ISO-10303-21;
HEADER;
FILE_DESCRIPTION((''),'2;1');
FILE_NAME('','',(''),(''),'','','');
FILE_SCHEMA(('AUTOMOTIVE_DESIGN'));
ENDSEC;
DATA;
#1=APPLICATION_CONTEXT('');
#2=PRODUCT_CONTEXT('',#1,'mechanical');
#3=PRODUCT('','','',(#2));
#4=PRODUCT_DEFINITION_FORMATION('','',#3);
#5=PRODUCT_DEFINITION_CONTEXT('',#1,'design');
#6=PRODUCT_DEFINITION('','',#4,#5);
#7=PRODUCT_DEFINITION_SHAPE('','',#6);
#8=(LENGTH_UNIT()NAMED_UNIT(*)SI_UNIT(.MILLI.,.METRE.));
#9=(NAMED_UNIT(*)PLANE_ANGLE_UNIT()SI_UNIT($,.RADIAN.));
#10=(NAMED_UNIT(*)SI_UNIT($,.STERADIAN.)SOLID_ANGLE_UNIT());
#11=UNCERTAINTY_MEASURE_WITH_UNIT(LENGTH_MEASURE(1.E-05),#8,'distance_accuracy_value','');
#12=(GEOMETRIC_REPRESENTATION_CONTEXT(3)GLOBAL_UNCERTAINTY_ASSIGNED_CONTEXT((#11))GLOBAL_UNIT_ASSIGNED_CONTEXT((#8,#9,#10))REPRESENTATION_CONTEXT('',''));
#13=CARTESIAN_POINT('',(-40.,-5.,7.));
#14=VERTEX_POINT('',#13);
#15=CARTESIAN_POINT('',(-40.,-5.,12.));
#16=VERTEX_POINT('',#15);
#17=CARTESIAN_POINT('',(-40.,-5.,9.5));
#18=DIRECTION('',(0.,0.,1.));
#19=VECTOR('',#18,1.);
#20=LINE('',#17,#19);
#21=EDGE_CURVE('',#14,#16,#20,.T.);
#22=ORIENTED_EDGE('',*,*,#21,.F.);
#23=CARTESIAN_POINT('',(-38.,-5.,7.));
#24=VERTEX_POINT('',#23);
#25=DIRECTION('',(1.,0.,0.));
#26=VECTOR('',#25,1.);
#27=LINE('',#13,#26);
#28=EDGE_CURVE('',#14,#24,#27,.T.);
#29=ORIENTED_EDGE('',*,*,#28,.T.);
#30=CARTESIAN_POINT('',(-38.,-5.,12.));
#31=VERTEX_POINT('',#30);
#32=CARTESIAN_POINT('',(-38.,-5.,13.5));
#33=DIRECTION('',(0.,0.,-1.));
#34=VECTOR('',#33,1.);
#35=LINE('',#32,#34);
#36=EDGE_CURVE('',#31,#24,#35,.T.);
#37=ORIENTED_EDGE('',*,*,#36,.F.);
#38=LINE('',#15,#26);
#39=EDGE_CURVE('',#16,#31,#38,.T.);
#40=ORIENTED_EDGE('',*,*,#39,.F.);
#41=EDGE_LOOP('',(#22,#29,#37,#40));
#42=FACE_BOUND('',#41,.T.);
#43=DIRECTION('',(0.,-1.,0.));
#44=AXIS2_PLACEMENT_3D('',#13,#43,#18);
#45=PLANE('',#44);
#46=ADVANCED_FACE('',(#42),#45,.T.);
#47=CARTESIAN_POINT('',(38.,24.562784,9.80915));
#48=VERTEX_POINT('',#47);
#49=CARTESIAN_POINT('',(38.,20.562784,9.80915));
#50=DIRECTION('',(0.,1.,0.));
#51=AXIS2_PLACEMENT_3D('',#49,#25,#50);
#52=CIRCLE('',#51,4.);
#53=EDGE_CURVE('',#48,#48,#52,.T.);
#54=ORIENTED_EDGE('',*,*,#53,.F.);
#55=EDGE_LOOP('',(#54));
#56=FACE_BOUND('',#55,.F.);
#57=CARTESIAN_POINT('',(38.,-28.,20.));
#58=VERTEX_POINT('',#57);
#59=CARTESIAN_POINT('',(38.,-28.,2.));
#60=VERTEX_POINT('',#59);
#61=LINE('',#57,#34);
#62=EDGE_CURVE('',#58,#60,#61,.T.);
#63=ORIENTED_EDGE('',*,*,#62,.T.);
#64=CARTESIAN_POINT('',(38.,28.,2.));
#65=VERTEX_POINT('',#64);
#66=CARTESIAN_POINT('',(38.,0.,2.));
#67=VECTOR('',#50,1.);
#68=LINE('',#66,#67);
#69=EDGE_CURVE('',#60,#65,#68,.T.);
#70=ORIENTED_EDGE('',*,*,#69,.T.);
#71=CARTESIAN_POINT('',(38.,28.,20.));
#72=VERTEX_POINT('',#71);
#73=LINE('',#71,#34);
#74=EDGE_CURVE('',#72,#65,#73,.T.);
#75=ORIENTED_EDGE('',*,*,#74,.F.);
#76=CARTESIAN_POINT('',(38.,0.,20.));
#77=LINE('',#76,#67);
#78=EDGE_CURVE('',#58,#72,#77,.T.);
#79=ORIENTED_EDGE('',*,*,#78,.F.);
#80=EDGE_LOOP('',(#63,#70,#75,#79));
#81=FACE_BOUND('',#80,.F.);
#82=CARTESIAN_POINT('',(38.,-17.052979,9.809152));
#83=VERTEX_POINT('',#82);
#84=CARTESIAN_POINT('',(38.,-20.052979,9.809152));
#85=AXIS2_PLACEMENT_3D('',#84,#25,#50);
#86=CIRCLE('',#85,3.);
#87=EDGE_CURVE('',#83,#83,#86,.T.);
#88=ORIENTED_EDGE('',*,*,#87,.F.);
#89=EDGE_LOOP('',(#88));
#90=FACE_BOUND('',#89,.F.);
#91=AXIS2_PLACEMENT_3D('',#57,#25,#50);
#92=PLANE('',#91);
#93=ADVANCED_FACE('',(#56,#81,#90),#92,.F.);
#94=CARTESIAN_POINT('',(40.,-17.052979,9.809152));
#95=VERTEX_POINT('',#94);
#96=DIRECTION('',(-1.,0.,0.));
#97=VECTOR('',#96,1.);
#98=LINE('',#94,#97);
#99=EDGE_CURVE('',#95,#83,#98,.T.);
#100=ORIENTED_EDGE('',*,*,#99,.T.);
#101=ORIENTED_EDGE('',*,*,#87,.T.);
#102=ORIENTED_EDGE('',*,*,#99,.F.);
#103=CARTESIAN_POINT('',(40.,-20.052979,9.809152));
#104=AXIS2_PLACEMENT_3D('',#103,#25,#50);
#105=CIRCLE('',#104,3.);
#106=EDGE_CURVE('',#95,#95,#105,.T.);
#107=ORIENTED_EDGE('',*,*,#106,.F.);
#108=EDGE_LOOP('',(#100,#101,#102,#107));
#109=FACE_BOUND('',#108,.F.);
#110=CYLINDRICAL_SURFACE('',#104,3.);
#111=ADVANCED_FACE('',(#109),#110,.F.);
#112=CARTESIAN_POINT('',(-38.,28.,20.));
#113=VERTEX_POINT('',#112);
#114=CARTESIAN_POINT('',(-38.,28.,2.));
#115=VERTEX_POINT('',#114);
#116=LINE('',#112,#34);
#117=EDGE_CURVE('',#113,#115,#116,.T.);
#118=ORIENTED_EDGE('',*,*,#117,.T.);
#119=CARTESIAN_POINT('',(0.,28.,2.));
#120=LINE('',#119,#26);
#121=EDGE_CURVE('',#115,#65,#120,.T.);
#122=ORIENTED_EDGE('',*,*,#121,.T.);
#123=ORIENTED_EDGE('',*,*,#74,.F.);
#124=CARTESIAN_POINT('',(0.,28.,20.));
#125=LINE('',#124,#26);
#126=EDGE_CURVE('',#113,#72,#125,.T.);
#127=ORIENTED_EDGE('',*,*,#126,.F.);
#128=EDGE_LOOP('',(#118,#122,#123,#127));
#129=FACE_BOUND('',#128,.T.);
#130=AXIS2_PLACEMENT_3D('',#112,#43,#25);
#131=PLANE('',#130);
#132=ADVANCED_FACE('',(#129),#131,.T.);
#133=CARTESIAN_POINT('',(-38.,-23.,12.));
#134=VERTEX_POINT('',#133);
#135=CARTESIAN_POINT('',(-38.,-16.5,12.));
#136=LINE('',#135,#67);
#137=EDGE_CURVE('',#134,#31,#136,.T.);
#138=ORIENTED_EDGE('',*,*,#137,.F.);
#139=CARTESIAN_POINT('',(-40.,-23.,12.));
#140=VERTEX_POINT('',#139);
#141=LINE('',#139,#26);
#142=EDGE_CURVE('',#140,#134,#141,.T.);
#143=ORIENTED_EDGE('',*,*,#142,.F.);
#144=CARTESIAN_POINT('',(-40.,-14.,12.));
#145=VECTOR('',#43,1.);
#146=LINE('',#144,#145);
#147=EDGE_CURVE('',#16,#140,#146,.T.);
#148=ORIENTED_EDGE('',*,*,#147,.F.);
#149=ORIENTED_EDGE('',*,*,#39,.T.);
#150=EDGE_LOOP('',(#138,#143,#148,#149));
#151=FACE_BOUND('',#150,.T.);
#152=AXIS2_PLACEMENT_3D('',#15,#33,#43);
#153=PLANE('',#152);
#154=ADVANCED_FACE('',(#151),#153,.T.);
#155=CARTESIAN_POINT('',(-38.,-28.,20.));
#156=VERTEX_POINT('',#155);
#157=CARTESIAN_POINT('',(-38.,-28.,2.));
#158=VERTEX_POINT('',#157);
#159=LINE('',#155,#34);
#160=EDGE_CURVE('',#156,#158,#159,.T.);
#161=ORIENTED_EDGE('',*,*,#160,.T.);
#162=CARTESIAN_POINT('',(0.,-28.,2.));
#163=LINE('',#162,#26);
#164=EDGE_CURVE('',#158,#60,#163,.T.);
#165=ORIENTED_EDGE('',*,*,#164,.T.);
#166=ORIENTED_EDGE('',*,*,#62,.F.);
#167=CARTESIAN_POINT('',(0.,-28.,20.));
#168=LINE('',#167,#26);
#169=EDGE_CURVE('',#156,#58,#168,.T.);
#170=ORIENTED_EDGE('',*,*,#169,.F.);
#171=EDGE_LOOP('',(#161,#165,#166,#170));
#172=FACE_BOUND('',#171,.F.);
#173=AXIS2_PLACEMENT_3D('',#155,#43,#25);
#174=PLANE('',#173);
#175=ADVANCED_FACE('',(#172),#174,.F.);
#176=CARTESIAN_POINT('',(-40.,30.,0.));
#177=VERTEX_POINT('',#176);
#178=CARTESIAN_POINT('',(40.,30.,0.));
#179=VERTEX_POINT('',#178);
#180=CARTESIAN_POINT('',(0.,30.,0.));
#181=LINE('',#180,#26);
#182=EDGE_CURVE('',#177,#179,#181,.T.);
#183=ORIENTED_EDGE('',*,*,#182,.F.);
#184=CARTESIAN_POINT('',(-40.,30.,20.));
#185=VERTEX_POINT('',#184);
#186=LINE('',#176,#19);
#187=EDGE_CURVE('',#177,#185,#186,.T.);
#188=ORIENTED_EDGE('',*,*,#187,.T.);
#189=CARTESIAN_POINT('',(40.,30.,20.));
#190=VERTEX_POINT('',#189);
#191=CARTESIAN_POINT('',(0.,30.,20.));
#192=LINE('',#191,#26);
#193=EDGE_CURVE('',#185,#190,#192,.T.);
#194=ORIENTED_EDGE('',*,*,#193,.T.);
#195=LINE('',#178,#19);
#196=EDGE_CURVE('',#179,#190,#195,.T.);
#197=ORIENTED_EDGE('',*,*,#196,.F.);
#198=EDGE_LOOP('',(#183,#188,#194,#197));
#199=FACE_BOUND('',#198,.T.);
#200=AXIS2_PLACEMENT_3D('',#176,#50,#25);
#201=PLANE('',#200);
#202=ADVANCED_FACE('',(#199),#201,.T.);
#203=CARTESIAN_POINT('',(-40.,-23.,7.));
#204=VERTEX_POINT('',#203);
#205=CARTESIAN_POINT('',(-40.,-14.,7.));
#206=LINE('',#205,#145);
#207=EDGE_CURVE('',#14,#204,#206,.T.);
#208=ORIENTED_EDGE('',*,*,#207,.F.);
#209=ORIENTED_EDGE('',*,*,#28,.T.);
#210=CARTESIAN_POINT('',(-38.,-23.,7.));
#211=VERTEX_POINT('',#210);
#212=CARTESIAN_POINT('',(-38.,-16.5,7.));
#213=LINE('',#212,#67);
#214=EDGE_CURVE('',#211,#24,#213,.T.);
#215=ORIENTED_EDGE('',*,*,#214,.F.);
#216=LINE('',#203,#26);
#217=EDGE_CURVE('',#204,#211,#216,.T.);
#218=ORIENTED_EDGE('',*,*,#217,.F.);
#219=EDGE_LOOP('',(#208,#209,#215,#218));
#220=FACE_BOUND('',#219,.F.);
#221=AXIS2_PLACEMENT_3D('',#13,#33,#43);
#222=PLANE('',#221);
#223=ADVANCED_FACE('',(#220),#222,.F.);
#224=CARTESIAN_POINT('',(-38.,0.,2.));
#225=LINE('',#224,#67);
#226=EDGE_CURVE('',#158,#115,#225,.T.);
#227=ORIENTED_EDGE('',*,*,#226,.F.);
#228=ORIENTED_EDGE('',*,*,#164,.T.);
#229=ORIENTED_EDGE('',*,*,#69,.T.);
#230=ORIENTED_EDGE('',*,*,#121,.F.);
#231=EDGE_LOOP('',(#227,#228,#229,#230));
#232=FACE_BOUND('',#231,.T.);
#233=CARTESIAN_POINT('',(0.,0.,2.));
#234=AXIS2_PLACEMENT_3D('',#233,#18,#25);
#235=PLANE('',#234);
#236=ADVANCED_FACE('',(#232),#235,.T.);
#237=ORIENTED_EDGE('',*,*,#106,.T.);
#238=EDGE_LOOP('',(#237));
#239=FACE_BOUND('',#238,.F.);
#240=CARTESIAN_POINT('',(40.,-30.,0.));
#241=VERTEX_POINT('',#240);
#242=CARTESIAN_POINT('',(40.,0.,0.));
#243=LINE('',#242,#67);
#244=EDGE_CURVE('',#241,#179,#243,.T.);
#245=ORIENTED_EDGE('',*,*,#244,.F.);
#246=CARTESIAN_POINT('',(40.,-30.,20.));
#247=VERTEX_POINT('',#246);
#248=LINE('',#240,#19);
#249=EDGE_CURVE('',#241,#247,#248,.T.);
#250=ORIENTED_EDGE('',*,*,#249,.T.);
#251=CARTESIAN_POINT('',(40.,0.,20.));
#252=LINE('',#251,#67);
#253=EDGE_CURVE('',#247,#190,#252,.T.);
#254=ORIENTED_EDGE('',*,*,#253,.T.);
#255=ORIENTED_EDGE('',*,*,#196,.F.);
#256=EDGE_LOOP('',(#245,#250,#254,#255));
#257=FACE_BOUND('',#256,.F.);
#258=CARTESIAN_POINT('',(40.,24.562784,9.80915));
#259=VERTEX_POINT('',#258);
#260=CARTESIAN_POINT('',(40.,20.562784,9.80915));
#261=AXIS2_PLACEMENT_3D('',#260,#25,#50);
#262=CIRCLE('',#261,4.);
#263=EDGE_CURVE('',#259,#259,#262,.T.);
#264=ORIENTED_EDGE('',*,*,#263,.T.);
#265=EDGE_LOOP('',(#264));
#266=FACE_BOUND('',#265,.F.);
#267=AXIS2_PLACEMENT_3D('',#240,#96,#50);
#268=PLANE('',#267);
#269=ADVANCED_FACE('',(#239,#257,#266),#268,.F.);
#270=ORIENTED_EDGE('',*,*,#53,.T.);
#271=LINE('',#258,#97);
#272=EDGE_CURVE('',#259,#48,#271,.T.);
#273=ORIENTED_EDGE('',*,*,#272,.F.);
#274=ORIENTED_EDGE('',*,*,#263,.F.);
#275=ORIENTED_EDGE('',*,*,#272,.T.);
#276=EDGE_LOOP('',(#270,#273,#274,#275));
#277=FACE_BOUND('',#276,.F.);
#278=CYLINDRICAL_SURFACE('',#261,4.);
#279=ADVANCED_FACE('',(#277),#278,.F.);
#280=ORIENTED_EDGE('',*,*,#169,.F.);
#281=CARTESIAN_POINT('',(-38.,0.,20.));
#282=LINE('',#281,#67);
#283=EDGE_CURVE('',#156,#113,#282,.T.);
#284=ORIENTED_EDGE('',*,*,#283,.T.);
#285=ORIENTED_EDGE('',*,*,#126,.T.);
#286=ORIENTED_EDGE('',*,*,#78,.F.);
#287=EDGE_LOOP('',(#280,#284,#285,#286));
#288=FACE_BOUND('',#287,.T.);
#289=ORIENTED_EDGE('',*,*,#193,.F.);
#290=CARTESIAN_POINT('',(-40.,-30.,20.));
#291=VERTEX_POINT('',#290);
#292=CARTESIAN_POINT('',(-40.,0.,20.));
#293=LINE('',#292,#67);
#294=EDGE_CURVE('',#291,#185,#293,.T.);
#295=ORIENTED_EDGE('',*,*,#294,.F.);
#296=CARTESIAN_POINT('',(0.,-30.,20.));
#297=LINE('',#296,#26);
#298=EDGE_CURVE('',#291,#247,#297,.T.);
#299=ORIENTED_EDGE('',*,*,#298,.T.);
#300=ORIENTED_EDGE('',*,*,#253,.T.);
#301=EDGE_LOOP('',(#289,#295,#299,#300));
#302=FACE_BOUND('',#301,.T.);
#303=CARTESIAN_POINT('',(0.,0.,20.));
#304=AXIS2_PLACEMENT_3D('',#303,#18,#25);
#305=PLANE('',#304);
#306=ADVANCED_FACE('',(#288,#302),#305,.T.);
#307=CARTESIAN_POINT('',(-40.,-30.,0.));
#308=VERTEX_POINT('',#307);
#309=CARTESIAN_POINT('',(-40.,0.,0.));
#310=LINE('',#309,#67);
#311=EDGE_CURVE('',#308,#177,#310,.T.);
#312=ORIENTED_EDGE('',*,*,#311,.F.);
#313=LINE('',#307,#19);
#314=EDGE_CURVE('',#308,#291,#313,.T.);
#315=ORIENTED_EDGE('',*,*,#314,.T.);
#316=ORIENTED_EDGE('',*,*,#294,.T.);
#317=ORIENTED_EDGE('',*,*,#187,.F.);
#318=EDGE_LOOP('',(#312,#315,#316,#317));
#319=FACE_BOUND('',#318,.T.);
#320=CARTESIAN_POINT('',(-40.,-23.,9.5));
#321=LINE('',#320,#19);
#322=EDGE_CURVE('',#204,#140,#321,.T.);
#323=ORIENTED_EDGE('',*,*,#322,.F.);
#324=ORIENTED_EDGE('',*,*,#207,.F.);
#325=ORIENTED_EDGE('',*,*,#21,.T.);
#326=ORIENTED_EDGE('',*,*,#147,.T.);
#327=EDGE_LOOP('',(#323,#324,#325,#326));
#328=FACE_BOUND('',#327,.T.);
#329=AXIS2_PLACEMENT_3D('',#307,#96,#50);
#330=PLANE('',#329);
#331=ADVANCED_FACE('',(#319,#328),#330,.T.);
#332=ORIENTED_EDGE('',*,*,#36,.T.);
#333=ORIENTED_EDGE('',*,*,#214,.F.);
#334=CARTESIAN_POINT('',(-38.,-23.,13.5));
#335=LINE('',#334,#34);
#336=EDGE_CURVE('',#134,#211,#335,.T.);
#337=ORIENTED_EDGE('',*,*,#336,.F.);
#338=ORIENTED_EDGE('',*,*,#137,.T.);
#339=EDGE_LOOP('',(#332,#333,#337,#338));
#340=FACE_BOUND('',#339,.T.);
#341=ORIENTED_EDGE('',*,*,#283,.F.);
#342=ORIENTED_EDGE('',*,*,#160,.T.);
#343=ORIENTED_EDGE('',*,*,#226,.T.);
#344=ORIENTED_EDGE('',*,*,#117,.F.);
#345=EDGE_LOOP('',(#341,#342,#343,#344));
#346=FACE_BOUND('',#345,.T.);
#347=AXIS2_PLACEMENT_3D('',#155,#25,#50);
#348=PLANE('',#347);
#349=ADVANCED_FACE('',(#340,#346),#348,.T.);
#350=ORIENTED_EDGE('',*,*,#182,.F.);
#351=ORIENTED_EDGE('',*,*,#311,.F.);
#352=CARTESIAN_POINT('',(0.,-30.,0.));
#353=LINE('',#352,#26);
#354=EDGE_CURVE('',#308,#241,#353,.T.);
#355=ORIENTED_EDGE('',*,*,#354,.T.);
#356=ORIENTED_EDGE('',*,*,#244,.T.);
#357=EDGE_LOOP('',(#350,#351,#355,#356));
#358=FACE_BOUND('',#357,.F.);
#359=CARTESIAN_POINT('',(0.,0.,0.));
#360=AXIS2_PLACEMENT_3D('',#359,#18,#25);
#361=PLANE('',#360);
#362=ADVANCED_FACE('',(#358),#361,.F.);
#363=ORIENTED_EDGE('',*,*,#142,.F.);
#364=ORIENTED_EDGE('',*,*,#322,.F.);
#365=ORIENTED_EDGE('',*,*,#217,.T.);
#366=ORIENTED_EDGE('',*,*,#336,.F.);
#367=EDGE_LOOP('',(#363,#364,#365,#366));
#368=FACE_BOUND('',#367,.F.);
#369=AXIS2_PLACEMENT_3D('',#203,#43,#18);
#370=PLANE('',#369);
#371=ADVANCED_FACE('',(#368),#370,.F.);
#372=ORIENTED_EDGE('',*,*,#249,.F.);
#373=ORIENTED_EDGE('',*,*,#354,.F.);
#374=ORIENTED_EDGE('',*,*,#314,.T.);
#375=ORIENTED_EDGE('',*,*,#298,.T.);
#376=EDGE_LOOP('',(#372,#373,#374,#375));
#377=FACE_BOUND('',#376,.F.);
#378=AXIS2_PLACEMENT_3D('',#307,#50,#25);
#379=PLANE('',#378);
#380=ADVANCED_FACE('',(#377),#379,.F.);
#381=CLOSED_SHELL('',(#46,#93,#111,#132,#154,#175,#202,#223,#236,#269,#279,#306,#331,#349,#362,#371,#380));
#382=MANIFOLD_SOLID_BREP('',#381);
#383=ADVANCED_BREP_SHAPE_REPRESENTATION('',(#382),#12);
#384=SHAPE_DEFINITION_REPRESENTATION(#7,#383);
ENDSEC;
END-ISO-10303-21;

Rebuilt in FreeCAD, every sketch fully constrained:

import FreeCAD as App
import Part
import Sketcher

V = App.Vector

doc = App.newDocument("Part")
body = doc.addObject("PartDesign::Body", "Body")

# Sketch on XY plane
sketch1 = body.newObject("Sketcher::SketchObject", "Sketch")
sketch1.AttachmentSupport = (doc.getObject("XY_Plane"), [""])
sketch1.MapMode = "FlatFace"
sketch1.addGeometry(Part.LineSegment(V(-40, 30, 0), V(-40, -30, 0)), False)
sketch1.addGeometry(Part.LineSegment(V(-40, -30, 0), V(40, -30, 0)), False)
sketch1.addGeometry(Part.LineSegment(V(40, -30, 0), V(40, 30, 0)), False)
sketch1.addGeometry(Part.LineSegment(V(40, 30, 0), V(-40, 30, 0)), False)
sketch1.addConstraint(Sketcher.Constraint("Coincident", 0, 2, 1, 1))
sketch1.addConstraint(Sketcher.Constraint("Coincident", 1, 2, 2, 1))
sketch1.addConstraint(Sketcher.Constraint("Coincident", 2, 2, 3, 1))
sketch1.addConstraint(Sketcher.Constraint("Coincident", 3, 2, 0, 1))
sketch1.addConstraint(Sketcher.Constraint("Vertical", 0))
sketch1.addConstraint(Sketcher.Constraint("Horizontal", 1))
sketch1.addConstraint(Sketcher.Constraint("Vertical", 2))
sketch1.addConstraint(Sketcher.Constraint("Horizontal", 3))
sketch1.addConstraint(Sketcher.Constraint("Symmetric", 0, 2, 2, 2, -1, 1))
sketch1.addConstraint(Sketcher.Constraint("DistanceX", 1, 1, 1, 2, 80.0))
sketch1.addConstraint(Sketcher.Constraint("DistanceY", 0, 2, 0, 1, 60.0))
pad1 = body.newObject("PartDesign::Pad", "Pad")
pad1.Profile = sketch1
pad1.Length = 20

# Sketch on XY plane
sketch2 = body.newObject("Sketcher::SketchObject", "Sketch001")
sketch2.AttachmentSupport = (doc.getObject("XY_Plane"), [""])
sketch2.MapMode = "FlatFace"
sketch2.AttachmentOffset = App.Placement(V(0, 0, 20), App.Rotation())
sketch2.addGeometry(Part.LineSegment(V(-38, 28, 0), V(-38, -28, 0)), False)
sketch2.addGeometry(Part.LineSegment(V(-38, -28, 0), V(38, -28, 0)), False)
sketch2.addGeometry(Part.LineSegment(V(38, -28, 0), V(38, 28, 0)), False)
sketch2.addGeometry(Part.LineSegment(V(38, 28, 0), V(-38, 28, 0)), False)
sketch2.addConstraint(Sketcher.Constraint("Coincident", 0, 2, 1, 1))
sketch2.addConstraint(Sketcher.Constraint("Coincident", 1, 2, 2, 1))
sketch2.addConstraint(Sketcher.Constraint("Coincident", 2, 2, 3, 1))
sketch2.addConstraint(Sketcher.Constraint("Coincident", 3, 2, 0, 1))
sketch2.addConstraint(Sketcher.Constraint("Vertical", 0))
sketch2.addConstraint(Sketcher.Constraint("Horizontal", 1))
sketch2.addConstraint(Sketcher.Constraint("Vertical", 2))
sketch2.addConstraint(Sketcher.Constraint("Horizontal", 3))
sketch2.addConstraint(Sketcher.Constraint("Symmetric", 0, 2, 2, 2, -1, 1))
sketch2.addConstraint(Sketcher.Constraint("DistanceX", 1, 1, 1, 2, 76.0))
sketch2.addConstraint(Sketcher.Constraint("DistanceY", 0, 2, 0, 1, 56.0))
pocket1 = body.newObject("PartDesign::Pocket", "Pocket")
pocket1.Profile = sketch2
pocket1.Length = 18

# Sketch on YZ plane
sketch3 = body.newObject("Sketcher::SketchObject", "Sketch002")
sketch3.AttachmentSupport = (doc.getObject("YZ_Plane"), [""])
sketch3.MapMode = "FlatFace"
sketch3.AttachmentOffset = App.Placement(V(0, 0, -40), App.Rotation())
sketch3.addGeometry(Part.LineSegment(V(-5, 12, 0), V(-5, 7, 0)), False)
sketch3.addGeometry(Part.LineSegment(V(-5, 7, 0), V(-23, 7, 0)), False)
sketch3.addGeometry(Part.LineSegment(V(-23, 7, 0), V(-23, 12, 0)), False)
sketch3.addGeometry(Part.LineSegment(V(-23, 12, 0), V(-5, 12, 0)), False)
sketch3.addConstraint(Sketcher.Constraint("Coincident", 0, 2, 1, 1))
sketch3.addConstraint(Sketcher.Constraint("Coincident", 1, 2, 2, 1))
sketch3.addConstraint(Sketcher.Constraint("Coincident", 2, 2, 3, 1))
sketch3.addConstraint(Sketcher.Constraint("Coincident", 3, 2, 0, 1))
sketch3.addConstraint(Sketcher.Constraint("Vertical", 0))
sketch3.addConstraint(Sketcher.Constraint("Horizontal", 1))
sketch3.addConstraint(Sketcher.Constraint("Vertical", 2))
sketch3.addConstraint(Sketcher.Constraint("Horizontal", 3))
sketch3.addConstraint(Sketcher.Constraint("DistanceX", 1, 2, 1, 1, 18.0))
sketch3.addConstraint(Sketcher.Constraint("DistanceY", 0, 2, 0, 1, 5.0))
sketch3.addConstraint(Sketcher.Constraint("DistanceX", 0, 2, -1, 1, 5.0))
sketch3.addConstraint(Sketcher.Constraint("DistanceY", -1, 1, 0, 2, 7.0))
pocket2 = body.newObject("PartDesign::Pocket", "Pocket001")
pocket2.Profile = sketch3
pocket2.Length = 5
pocket2.Reversed = True

# Sketch on YZ plane
sketch4 = body.newObject("Sketcher::SketchObject", "Sketch003")
sketch4.AttachmentSupport = (doc.getObject("YZ_Plane"), [""])
sketch4.MapMode = "FlatFace"
sketch4.AttachmentOffset = App.Placement(V(0, 0, 40), App.Rotation())
sketch4.addGeometry(Part.Circle(V(20.6, 9.8, 0), V(0, 0, 1), 4), False)
sketch4.addGeometry(Part.Circle(V(-20.1, 9.8, 0), V(0, 0, 1), 3), False)
sketch4.addConstraint(Sketcher.Constraint("Horizontal", 0, 3, 1, 3))
sketch4.addConstraint(Sketcher.Constraint("Diameter", 0, 8.0))
sketch4.addConstraint(Sketcher.Constraint("Diameter", 1, 6.0))
sketch4.addConstraint(Sketcher.Constraint("DistanceY", -1, 1, 0, 3, 9.80915))
sketch4.addConstraint(Sketcher.Constraint("DistanceX", 1, 3, -1, 1, 20.052979))
sketch4.addConstraint(Sketcher.Constraint("DistanceX", -1, 1, 0, 3, 20.562784))
pocket3 = body.newObject("PartDesign::Pocket", "Pocket002")
pocket3.Profile = sketch4
pocket3.Length = 5

doc.recompute()
